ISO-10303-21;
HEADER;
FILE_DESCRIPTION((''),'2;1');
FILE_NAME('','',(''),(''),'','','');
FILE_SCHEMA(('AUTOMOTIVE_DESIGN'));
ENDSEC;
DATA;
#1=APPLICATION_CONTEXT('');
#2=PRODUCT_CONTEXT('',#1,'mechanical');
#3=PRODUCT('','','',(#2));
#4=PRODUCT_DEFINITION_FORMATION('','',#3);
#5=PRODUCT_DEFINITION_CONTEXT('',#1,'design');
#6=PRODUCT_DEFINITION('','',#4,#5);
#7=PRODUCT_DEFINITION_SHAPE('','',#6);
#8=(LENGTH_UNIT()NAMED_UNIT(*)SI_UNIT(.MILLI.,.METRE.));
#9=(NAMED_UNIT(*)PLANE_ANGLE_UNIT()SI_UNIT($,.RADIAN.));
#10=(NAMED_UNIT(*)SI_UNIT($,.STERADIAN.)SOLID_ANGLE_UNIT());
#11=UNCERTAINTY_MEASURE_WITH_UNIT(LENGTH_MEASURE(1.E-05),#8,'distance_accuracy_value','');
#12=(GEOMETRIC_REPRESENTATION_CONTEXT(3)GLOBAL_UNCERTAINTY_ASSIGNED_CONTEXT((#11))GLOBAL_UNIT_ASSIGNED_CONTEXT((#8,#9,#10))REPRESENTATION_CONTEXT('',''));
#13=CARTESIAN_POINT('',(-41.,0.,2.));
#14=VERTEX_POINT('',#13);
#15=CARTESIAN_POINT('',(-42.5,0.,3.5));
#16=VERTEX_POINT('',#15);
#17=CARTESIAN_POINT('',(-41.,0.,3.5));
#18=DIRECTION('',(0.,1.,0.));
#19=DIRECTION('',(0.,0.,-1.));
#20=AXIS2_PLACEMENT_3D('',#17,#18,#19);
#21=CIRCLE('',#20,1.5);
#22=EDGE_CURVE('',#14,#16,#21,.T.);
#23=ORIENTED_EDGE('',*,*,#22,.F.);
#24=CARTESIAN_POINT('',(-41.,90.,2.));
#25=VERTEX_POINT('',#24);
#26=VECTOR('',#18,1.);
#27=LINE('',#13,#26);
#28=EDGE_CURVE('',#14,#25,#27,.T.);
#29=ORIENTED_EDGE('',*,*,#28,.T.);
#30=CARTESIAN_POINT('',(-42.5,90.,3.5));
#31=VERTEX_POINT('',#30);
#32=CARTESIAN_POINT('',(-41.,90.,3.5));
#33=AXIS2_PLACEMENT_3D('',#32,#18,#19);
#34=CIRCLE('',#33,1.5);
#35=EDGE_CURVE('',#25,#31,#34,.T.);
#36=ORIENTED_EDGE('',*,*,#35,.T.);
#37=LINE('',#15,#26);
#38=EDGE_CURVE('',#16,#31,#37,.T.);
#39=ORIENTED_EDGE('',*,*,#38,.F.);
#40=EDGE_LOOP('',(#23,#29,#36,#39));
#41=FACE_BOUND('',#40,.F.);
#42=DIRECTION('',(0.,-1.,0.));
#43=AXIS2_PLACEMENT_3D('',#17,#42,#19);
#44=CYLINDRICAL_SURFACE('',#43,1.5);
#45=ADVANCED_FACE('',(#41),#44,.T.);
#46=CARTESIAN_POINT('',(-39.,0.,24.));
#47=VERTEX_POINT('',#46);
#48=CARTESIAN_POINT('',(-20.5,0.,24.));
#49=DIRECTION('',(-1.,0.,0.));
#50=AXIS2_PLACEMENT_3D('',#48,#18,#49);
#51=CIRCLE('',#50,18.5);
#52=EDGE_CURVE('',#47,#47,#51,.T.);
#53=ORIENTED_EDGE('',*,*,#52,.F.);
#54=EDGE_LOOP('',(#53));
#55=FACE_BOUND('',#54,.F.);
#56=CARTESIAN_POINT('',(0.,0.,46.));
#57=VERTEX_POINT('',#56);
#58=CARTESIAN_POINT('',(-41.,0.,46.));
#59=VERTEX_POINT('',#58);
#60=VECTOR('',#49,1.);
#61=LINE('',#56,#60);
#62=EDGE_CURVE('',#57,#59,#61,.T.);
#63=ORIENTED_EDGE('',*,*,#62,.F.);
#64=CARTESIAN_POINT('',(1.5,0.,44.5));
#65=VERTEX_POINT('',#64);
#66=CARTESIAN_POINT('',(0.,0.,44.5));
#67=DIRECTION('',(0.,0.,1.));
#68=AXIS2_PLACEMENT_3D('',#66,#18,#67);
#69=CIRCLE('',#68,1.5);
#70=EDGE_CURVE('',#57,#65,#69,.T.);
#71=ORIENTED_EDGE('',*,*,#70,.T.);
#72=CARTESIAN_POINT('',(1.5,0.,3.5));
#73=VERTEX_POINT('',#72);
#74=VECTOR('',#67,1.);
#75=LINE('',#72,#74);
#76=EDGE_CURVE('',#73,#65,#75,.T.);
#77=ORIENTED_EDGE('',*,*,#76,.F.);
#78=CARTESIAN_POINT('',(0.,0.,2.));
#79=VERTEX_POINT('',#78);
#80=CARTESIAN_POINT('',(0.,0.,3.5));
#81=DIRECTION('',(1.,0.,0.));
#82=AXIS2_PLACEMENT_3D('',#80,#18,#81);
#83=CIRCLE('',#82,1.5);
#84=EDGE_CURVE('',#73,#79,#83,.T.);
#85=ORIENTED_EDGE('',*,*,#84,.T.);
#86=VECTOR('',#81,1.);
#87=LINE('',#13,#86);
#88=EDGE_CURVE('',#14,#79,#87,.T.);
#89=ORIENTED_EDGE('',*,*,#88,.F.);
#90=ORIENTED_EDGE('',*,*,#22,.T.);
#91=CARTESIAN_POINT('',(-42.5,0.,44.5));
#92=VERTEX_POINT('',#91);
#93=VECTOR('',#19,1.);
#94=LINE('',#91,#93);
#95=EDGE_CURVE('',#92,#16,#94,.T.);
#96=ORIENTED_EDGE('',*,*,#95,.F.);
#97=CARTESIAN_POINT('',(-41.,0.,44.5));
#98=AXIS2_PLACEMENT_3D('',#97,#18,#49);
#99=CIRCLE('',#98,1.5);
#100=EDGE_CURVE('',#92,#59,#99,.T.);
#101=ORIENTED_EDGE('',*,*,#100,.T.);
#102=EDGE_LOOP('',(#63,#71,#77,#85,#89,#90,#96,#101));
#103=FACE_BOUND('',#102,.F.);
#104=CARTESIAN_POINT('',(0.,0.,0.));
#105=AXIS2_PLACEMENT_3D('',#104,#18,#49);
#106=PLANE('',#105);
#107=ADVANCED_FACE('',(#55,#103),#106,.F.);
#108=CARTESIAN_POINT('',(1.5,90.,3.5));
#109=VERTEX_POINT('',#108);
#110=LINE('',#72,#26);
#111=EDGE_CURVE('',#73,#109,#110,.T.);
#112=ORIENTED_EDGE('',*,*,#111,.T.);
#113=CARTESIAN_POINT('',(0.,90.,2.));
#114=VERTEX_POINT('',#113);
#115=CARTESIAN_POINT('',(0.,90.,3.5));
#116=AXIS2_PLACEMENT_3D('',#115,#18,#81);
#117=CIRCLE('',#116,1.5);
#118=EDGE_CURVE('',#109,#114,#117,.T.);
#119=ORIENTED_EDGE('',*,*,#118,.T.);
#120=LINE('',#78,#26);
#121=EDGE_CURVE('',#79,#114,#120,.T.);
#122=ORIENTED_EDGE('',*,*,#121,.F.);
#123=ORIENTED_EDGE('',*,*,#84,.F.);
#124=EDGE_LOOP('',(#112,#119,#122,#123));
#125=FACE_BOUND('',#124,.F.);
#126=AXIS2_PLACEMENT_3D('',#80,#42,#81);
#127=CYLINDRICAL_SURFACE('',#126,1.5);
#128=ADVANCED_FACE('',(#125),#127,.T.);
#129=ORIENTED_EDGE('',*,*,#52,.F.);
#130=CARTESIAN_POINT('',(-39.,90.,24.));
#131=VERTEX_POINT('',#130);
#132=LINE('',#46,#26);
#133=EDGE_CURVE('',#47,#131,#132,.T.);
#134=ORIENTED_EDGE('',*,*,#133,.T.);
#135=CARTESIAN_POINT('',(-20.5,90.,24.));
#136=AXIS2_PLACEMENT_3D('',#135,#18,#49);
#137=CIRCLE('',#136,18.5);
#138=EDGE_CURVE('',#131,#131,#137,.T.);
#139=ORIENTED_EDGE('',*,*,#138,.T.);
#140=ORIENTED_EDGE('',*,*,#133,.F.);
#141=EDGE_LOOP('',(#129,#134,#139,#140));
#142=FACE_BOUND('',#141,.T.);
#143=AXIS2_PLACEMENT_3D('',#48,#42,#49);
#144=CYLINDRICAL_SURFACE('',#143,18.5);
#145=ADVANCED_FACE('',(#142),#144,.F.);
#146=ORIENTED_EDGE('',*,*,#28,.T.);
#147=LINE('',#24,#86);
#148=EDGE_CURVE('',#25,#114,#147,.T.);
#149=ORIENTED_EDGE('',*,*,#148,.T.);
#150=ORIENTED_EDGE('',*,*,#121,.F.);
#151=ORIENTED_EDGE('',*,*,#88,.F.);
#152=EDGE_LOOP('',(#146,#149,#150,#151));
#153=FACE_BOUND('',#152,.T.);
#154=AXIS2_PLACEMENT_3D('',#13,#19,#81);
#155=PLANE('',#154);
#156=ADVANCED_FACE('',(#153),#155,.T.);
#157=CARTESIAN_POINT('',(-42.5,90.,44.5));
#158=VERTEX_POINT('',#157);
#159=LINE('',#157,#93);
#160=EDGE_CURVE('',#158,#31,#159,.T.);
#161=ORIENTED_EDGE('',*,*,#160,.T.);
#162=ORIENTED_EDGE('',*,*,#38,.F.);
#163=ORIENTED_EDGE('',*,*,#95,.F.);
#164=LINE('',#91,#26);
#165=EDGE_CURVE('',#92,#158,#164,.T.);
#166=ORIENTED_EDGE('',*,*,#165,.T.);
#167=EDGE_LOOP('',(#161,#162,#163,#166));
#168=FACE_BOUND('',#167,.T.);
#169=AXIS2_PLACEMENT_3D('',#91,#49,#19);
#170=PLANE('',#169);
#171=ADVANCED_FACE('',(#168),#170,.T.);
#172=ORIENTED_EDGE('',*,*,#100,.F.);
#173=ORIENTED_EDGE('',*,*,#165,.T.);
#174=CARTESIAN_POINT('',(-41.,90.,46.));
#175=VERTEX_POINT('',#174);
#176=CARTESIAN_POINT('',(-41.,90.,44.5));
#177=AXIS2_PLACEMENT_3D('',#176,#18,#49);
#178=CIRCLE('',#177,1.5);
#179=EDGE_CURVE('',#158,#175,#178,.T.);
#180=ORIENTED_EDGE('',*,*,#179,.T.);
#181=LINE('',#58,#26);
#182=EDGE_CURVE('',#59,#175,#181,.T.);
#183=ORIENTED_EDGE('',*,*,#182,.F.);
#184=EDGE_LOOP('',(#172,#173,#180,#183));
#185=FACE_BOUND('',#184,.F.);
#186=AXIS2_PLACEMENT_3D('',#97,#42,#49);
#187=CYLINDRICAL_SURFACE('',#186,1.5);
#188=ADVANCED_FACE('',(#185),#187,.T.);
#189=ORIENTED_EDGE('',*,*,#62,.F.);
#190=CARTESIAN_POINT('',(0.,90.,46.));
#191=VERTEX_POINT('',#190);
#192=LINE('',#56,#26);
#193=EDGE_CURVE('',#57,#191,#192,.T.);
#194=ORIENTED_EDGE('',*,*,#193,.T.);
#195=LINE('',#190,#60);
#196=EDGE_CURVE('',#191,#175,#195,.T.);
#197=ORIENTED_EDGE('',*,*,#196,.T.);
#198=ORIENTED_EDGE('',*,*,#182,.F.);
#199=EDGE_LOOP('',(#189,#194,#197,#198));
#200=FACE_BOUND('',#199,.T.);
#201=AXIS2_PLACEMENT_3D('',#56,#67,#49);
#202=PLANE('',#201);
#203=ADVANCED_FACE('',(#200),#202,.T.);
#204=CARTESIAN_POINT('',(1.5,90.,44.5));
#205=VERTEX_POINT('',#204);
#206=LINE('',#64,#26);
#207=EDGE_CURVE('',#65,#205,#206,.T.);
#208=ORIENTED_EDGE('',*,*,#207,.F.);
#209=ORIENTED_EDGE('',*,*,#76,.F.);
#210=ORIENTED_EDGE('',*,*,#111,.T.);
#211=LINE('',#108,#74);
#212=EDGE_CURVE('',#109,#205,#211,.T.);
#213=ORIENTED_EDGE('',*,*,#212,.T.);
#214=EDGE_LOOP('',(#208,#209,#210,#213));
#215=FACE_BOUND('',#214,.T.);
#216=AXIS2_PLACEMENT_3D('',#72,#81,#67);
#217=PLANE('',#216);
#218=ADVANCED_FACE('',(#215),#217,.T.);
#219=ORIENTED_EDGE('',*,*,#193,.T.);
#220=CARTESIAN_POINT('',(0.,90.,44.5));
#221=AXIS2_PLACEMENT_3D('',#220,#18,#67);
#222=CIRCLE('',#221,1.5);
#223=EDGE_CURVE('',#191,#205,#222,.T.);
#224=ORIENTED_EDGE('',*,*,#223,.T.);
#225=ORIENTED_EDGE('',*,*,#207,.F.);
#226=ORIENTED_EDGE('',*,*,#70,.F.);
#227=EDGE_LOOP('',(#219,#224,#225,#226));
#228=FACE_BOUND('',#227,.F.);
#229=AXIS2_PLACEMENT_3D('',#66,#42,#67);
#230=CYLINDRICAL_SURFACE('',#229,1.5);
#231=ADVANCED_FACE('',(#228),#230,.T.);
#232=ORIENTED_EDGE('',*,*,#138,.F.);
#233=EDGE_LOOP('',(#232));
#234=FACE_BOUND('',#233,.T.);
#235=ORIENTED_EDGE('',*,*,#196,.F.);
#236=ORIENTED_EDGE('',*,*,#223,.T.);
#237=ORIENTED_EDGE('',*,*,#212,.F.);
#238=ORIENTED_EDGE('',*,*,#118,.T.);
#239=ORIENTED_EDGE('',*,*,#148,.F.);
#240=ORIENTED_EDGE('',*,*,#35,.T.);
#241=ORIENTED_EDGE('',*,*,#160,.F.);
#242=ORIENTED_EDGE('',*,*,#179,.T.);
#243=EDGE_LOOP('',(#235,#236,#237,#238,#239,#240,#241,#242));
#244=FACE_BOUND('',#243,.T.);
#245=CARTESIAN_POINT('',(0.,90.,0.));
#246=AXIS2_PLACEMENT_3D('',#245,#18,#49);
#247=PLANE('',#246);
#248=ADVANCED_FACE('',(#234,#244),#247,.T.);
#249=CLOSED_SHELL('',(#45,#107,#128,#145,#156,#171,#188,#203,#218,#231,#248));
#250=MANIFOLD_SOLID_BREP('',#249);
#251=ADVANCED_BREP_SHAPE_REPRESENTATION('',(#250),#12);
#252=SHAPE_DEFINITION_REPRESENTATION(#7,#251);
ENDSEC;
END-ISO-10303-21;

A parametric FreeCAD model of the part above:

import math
import FreeCAD as App
import Part
import Sketcher

V = App.Vector
Q = App.Units.Quantity

doc = App.newDocument("Part")
params = doc.addObject("Spreadsheet::Sheet", "Params")
for row, (alias, value) in enumerate([
    ("sketch1_diameter", "37 mm"),
    ("sketch1_radius", "1.5 mm"),
    ("sketch1_width", "41 mm"),
    ("pad1_length", "90 mm"),
], start=1):
    params.set(f"A{row}", alias)
    params.set(f"B{row}", "=" + value)
    params.setAlias(f"B{row}", alias)

body = doc.addObject("PartDesign::Body", "Body")

# Sketch on XZ plane
sketch1 = body.newObject("Sketcher::SketchObject", "Sketch")
sketch1.AttachmentSupport = (doc.getObject("XZ_Plane"), [""])
sketch1.MapMode = "FlatFace"
sketch1.addGeometry([
    Part.LineSegment(V(-42.5, 3.5, 0), V(-42.5, 44.5, 0)),  # 0
    Part.ArcOfCircle(Part.Circle(V(-41, 44.5, 0), V(0, 0, 1), 1.5), math.radians(90), math.radians(180)),  # 1
    Part.LineSegment(V(-41, 46, 0), V(0, 46, 0)),  # 2
    Part.ArcOfCircle(Part.Circle(V(0, 44.5, 0), V(0, 0, 1), 1.5), math.radians(0), math.radians(90)),  # 3
    Part.LineSegment(V(1.5, 44.5, 0), V(1.5, 3.5, 0)),  # 4
    Part.ArcOfCircle(Part.Circle(V(0, 3.5, 0), V(0, 0, 1), 1.5), math.radians(-90), math.radians(0)),  # 5
    Part.LineSegment(V(0, 2, 0), V(-41, 2, 0)),  # 6
    Part.ArcOfCircle(Part.Circle(V(-41, 3.5, 0), V(0, 0, 1), 1.5), math.radians(180), math.radians(270)),  # 7
    Part.Circle(V(-20.5, 24, 0), V(0, 0, 1), 18.5),  # 8
], False)
sketch1.addConstraint([
    Sketcher.Constraint("Tangent", 0, 2, 1, 2),
    Sketcher.Constraint("Tangent", 1, 1, 2, 1),
    Sketcher.Constraint("Tangent", 2, 2, 3, 2),
    Sketcher.Constraint("Tangent", 3, 1, 4, 1),
    Sketcher.Constraint("Tangent", 4, 2, 5, 2),
    Sketcher.Constraint("Tangent", 5, 1, 6, 1),
    Sketcher.Constraint("Tangent", 6, 2, 7, 2),
    Sketcher.Constraint("Tangent", 7, 1, 0, 1),
    Sketcher.Constraint("Vertical", 0),
    Sketcher.Constraint("Horizontal", 2),
    Sketcher.Constraint("Vertical", 4),
    Sketcher.Constraint("Horizontal", 6),
    Sketcher.Constraint("Equal", 1, 3),
    Sketcher.Constraint("Equal", 3, 5),
    Sketcher.Constraint("Equal", 5, 7),
    Sketcher.Constraint("PointOnObject", 3, 3, -2),
    Sketcher.Constraint("Equal", 6, 0),
    Sketcher.Constraint("Diameter", 8, Q("37 mm")),
    Sketcher.Constraint("Radius", 1, Q("1.5 mm")),
    Sketcher.Constraint("DistanceX", 2, 1, 2, 2, Q("41 mm")),
    Sketcher.Constraint("DistanceY", -1, 1, 8, 3, Q("24 mm")),
    Sketcher.Constraint("DistanceY", -1, 1, 1, 1, Q("46 mm")),
    Sketcher.Constraint("DistanceX", 0, 2, 8, 3, Q("22 mm")),
])
sketch1.setExpression("Constraints[17]", "Params.sketch1_diameter")
sketch1.setExpression("Constraints[18]", "Params.sketch1_radius")
sketch1.setExpression("Constraints[19]", "Params.sketch1_width")
pad1 = body.newObject("PartDesign::Pad", "Pad")
pad1.Profile = sketch1
pad1.setExpression("Length", "Params.pad1_length")
pad1.Reversed = True

doc.recompute()
